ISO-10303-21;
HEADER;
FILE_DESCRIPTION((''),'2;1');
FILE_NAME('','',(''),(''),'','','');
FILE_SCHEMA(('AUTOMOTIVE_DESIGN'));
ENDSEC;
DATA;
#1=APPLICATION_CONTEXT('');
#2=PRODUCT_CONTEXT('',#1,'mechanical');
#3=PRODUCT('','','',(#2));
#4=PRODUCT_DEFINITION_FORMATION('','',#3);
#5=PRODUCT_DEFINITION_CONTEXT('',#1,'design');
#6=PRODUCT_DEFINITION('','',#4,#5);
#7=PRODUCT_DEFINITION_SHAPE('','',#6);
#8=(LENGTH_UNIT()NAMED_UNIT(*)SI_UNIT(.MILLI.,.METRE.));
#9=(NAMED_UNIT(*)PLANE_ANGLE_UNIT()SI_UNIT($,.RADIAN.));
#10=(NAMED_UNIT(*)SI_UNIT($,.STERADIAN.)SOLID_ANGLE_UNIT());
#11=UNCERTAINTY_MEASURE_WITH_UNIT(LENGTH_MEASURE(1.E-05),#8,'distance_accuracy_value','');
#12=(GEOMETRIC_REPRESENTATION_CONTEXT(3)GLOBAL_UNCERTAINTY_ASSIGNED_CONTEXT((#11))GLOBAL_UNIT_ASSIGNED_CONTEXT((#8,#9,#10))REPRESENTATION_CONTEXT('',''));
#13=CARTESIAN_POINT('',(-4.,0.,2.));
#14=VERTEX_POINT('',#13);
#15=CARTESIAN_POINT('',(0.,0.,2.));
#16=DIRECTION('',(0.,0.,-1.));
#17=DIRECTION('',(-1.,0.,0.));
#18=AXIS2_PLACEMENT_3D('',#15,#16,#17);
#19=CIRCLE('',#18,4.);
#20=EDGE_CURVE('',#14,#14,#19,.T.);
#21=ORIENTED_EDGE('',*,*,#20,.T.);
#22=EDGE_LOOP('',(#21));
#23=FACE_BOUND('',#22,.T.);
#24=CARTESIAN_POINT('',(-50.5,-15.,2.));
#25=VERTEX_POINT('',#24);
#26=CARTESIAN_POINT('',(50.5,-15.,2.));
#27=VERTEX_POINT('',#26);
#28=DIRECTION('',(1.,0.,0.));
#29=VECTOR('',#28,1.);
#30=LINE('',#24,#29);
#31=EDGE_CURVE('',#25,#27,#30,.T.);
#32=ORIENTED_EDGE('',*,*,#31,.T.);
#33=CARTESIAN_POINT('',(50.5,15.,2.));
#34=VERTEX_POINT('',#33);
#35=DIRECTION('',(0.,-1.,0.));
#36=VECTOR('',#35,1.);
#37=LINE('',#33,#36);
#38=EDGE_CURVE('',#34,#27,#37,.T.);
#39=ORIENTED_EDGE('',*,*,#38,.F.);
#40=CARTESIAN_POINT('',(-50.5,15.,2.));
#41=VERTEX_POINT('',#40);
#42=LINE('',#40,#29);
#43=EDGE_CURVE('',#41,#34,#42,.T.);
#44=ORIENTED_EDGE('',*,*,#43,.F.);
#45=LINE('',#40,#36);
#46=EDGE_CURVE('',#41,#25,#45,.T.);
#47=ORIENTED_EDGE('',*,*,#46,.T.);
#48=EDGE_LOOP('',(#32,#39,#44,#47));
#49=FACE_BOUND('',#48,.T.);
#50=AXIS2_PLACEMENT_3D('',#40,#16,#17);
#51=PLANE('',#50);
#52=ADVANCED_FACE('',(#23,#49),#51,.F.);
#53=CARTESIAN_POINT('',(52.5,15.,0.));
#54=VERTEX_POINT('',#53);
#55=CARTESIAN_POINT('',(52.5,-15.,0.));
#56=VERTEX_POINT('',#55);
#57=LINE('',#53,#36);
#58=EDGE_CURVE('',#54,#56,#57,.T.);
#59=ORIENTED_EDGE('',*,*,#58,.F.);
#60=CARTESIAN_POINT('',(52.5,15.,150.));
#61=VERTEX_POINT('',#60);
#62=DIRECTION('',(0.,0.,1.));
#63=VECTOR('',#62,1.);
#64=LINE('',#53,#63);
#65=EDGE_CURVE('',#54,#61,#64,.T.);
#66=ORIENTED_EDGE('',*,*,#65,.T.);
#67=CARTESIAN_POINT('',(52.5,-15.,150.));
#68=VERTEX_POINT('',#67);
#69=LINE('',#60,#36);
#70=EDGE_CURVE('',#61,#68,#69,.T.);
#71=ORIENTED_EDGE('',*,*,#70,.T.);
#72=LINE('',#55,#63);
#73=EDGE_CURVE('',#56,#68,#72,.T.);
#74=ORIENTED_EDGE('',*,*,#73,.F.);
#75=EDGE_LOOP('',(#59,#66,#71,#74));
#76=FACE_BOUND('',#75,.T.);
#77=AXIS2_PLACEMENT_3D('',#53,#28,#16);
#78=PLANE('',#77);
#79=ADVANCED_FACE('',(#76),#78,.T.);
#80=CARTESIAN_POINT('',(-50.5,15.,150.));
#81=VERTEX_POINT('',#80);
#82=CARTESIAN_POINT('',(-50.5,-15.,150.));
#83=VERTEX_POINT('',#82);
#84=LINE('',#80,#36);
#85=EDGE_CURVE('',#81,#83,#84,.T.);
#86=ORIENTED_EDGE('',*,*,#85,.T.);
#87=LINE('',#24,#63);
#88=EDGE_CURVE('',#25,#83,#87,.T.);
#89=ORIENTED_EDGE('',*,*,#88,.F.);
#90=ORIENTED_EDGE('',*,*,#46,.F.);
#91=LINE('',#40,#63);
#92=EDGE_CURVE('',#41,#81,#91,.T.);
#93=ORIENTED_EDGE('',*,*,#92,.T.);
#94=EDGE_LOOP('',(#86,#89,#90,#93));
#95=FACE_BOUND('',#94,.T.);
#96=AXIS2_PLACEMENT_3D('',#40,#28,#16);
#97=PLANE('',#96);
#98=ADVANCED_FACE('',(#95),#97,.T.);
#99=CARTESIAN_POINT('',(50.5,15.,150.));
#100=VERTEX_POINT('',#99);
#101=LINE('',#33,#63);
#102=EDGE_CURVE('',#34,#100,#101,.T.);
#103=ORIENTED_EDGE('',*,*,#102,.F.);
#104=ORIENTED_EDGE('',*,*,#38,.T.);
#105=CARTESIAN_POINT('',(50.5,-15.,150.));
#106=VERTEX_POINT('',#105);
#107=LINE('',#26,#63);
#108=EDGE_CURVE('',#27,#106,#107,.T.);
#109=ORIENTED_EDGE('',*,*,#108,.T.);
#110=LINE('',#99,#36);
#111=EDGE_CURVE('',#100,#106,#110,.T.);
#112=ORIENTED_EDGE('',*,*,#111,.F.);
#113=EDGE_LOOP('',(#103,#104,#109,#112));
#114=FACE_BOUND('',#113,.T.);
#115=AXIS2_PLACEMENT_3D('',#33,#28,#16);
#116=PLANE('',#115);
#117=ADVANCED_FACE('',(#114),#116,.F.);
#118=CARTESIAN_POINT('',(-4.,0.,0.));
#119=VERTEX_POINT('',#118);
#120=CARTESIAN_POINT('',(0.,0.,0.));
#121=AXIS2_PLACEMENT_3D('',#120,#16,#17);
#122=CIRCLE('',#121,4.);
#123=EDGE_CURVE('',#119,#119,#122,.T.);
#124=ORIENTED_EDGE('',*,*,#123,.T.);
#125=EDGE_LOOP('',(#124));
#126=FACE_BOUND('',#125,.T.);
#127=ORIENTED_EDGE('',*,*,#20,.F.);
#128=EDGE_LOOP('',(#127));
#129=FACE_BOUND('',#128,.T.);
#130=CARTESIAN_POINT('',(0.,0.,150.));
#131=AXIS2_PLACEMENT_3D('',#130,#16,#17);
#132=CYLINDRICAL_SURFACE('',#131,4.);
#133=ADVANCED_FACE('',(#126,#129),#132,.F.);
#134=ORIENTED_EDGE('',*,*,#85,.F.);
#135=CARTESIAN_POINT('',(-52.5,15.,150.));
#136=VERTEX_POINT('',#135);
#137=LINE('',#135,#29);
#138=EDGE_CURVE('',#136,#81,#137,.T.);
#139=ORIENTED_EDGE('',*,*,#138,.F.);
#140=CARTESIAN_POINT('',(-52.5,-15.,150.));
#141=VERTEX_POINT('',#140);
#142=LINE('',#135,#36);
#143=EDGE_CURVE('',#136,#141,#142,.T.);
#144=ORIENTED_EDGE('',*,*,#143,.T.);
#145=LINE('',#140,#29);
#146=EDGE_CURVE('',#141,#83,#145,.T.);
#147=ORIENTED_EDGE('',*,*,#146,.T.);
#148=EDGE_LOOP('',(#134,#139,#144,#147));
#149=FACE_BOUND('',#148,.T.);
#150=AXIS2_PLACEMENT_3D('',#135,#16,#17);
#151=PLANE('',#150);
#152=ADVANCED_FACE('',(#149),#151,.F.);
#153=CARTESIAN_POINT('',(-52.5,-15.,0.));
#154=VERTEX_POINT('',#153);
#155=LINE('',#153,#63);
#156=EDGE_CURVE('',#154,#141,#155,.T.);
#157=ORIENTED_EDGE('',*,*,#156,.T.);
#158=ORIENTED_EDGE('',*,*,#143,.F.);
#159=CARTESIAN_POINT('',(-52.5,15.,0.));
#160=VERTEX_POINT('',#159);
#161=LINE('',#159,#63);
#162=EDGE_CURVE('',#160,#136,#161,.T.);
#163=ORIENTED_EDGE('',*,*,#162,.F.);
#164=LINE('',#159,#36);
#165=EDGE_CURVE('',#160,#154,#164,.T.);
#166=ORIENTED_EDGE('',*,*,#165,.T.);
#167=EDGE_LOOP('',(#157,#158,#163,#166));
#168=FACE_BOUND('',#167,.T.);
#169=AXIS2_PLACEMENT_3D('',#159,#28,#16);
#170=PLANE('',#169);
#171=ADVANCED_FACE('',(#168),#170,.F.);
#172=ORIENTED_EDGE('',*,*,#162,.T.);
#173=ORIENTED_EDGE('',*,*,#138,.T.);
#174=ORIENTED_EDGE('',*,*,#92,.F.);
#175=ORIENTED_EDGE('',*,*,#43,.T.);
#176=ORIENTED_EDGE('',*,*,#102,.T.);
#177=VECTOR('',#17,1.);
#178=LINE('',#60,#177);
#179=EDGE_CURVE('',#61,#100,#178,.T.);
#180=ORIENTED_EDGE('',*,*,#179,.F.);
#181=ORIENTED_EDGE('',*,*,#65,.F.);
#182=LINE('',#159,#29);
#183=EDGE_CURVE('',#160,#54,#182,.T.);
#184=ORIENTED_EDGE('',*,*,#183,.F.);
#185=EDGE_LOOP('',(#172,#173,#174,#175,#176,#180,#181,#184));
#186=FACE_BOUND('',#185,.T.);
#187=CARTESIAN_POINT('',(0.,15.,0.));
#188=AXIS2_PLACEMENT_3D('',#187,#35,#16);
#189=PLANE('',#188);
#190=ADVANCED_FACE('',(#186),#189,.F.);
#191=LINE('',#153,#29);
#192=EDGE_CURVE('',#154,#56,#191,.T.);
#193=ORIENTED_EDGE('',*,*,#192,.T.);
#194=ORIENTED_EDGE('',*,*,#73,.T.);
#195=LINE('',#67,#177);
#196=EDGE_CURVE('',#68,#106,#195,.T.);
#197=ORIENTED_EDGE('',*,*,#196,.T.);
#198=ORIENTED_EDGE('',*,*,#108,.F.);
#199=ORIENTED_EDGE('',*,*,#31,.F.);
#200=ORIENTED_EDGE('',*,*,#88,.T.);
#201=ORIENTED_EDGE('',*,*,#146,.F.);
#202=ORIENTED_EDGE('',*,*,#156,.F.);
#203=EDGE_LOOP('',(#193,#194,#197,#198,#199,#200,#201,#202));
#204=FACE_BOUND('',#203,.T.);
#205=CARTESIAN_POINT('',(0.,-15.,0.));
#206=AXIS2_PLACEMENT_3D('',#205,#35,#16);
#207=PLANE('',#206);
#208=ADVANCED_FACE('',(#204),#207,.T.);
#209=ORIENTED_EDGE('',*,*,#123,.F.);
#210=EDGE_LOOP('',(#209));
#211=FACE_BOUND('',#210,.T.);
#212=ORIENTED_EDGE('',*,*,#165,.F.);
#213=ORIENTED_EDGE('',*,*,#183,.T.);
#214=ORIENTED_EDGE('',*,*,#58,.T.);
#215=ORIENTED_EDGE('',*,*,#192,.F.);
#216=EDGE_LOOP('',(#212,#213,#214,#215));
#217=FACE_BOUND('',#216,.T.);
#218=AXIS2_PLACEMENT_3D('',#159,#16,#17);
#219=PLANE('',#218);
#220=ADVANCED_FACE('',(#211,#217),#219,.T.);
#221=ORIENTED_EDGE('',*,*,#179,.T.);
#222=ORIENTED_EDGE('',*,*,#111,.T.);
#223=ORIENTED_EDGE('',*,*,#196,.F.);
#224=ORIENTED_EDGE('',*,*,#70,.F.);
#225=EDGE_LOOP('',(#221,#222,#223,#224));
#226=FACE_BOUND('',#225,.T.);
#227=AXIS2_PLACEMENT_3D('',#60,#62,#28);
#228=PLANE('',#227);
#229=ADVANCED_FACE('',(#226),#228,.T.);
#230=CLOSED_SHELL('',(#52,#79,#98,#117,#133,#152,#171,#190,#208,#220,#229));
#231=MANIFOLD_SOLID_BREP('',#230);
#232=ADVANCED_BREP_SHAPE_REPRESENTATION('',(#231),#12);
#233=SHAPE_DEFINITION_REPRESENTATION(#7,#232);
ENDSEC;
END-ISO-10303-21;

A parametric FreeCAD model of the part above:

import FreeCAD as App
import Part
import Sketcher

V = App.Vector
Q = App.Units.Quantity


def add_polygon(sketch, points):
    """Adds a closed chain of lines whose ends are joined by coincident constraints."""
    first, n = sketch.GeometryCount, len(points)
    for a, b in zip(points, points[1:] + points[:1]):
        sketch.addGeometry(Part.LineSegment(App.Vector(*a, 0), App.Vector(*b, 0)), False)
    for i in range(n):
        sketch.addConstraint(Sketcher.Constraint("Coincident", first + i, 2, first + (i + 1) % n, 1))

doc = App.newDocument("Part")
params = doc.addObject("Spreadsheet::Sheet", "Params")
for row, (alias, value) in enumerate([
    ("sketch1_width", "2 mm"),
    ("sketch1_width2", "105 mm"),
    ("sketch1_height", "148 mm"),
    ("sketch1_height2", "150 mm"),
    ("pad1_length", "30 mm"),
    ("sketch2_diameter", "8 mm"),
], start=1):
    params.set(f"A{row}", alias)
    params.set(f"B{row}", "=" + value)
    params.setAlias(f"B{row}", alias)

body = doc.addObject("PartDesign::Body", "Body")

# Sketch on XZ plane
sketch1 = body.newObject("Sketcher::SketchObject", "Sketch")
sketch1.AttachmentSupport = (doc.getObject("XZ_Plane"), [""])
sketch1.MapMode = "FlatFace"
add_polygon(sketch1, [(50.5, 2), (50.5, 150), (52.5, 150), (52.5, 0), (-52.5, 0), (-52.5, 150), (-50.5, 150), (-50.5, 2)])  # lines 0-7
sketch1.addConstraint([
    Sketcher.Constraint("Vertical", 0),
    Sketcher.Constraint("Horizontal", 1),
    Sketcher.Constraint("Vertical", 2),
    Sketcher.Constraint("Horizontal", 3),
    Sketcher.Constraint("Vertical", 4),
    Sketcher.Constraint("Horizontal", 5),
    Sketcher.Constraint("Vertical", 6),
    Sketcher.Constraint("Horizontal", 7),
    Sketcher.Constraint("Symmetric", 2, 2, 3, 2, -1, 1),
    Sketcher.Constraint("Symmetric", 0, 2, 5, 2, -2),
    Sketcher.Constraint("DistanceX", 1, 1, 1, 2, Q("2 mm")),
    Sketcher.Constraint("DistanceX", 3, 2, 3, 1, Q("105 mm")),
    Sketcher.Constraint("DistanceY", 0, 1, 0, 2, Q("148 mm")),
    Sketcher.Constraint("DistanceY", 2, 2, 2, 1, Q("150 mm")),
])
sketch1.setExpression("Constraints[18]", "Params.sketch1_width")
sketch1.setExpression("Constraints[19]", "Params.sketch1_width2")
sketch1.setExpression("Constraints[20]", "Params.sketch1_height")
sketch1.setExpression("Constraints[21]", "Params.sketch1_height2")
pad1 = body.newObject("PartDesign::Pad", "Pad")
pad1.Profile = sketch1
pad1.setExpression("Length", "Params.pad1_length")
pad1.Midplane = True

# Sketch on XY plane
sketch2 = body.newObject("Sketcher::SketchObject", "Sketch001")
sketch2.AttachmentSupport = (doc.getObject("XY_Plane"), [""])
sketch2.MapMode = "FlatFace"
sketch2.addGeometry(Part.Circle(V(0, 0, 0), V(0, 0, 1), 4), False)
sketch2.addConstraint([
    Sketcher.Constraint("Coincident", 0, 3, -1, 1),
    Sketcher.Constraint("Diameter", 0, Q("8 mm")),
])
sketch2.setExpression("Constraints[1]", "Params.sketch2_diameter")
pocket1 = body.newObject("PartDesign::Pocket", "Pocket")
pocket1.Profile = sketch2
pocket1.Type = "ThroughAll"
pocket1.Reversed = True

doc.recompute()
